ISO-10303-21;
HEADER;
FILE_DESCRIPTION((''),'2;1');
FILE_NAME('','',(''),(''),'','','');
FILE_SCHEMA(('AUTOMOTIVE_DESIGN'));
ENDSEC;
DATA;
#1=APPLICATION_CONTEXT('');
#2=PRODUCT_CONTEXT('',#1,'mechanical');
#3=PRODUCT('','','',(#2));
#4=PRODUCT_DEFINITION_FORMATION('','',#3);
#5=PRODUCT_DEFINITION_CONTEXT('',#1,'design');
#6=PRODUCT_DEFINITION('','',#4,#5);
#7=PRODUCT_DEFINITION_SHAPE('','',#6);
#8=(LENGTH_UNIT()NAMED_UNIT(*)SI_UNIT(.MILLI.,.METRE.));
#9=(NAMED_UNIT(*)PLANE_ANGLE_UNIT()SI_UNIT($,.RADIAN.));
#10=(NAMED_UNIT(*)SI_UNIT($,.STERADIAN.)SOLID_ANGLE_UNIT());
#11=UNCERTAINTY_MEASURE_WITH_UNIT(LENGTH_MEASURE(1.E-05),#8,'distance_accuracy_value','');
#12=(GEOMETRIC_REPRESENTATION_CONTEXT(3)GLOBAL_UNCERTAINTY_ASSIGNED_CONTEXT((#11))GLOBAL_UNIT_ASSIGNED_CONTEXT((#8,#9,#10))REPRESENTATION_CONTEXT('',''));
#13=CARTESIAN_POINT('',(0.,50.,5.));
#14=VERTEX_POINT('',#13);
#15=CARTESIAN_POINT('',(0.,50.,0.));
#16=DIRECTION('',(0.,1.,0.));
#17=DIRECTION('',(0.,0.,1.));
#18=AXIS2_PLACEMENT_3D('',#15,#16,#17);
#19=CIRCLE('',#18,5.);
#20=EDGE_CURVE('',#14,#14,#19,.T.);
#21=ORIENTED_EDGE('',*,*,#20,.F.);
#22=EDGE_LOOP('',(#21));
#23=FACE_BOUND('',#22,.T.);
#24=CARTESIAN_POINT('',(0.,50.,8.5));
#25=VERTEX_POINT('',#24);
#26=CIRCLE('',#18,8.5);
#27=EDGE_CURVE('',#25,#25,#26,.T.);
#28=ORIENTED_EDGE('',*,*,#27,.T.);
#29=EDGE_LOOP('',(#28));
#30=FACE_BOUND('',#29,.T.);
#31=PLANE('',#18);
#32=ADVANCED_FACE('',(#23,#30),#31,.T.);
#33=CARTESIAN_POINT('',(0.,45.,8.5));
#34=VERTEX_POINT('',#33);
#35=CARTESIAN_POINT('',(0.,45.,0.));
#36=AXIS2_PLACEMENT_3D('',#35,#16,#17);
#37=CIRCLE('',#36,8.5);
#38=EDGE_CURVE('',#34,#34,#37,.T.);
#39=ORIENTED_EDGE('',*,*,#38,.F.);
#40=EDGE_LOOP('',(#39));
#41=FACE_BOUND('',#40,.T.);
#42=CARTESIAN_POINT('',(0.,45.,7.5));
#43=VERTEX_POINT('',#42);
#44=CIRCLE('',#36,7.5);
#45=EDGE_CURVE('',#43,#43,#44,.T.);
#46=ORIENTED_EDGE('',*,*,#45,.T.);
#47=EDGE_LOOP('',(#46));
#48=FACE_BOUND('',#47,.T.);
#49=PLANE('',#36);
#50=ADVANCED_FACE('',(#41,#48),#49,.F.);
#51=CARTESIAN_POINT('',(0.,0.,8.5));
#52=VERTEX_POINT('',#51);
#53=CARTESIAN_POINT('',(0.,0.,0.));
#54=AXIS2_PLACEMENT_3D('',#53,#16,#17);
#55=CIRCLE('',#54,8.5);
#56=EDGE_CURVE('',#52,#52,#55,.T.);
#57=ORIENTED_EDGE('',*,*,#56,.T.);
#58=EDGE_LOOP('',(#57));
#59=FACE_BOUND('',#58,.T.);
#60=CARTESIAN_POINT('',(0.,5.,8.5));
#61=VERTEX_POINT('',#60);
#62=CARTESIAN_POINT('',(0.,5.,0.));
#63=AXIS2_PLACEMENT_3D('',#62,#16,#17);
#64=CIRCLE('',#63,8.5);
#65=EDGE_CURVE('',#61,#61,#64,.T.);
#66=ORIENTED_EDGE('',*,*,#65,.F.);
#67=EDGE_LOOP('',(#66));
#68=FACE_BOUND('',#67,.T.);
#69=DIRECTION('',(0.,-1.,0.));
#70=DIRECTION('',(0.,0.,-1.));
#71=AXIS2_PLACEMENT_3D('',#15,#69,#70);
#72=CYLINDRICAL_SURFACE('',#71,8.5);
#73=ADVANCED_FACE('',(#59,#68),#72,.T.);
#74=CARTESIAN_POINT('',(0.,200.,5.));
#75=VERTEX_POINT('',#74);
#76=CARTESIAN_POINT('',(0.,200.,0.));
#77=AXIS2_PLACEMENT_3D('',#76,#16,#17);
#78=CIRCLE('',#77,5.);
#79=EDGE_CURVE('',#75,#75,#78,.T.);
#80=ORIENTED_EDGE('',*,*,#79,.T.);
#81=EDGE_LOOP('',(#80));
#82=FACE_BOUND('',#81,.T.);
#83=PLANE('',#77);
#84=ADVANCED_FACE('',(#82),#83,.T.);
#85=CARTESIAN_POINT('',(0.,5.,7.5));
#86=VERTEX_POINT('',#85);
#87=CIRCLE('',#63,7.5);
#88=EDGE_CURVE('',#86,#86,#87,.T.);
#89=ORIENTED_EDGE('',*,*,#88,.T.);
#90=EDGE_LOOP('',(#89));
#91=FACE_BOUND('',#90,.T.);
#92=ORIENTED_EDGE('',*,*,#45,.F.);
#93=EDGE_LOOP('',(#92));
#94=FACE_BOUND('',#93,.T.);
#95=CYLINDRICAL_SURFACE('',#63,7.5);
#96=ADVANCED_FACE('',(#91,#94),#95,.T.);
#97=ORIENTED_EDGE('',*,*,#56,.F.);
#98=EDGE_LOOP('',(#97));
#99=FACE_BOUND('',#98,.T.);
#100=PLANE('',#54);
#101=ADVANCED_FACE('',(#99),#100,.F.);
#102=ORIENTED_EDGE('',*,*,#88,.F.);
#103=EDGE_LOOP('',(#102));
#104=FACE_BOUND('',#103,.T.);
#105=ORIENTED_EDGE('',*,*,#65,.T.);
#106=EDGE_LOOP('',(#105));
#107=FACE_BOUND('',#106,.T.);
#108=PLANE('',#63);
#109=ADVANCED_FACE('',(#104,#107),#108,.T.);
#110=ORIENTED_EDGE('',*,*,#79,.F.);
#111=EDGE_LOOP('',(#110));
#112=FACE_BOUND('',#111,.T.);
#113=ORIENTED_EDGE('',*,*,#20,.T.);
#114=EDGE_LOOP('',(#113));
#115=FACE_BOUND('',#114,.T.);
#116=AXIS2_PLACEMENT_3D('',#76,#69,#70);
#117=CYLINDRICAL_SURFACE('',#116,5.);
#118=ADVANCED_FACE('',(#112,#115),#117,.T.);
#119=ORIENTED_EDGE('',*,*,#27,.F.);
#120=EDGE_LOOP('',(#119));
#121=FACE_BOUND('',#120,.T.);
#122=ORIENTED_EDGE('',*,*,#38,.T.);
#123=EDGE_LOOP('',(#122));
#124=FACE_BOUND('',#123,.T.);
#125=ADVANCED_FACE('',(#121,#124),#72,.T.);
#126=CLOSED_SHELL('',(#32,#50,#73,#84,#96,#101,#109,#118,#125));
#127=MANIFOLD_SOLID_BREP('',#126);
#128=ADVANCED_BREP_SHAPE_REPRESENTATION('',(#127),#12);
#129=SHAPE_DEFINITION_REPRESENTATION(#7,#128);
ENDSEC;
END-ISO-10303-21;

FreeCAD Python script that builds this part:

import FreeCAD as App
import Part
import Sketcher
Q = App.Units.Quantity

doc = App.newDocument("Part")
body = doc.addObject("PartDesign::Body", "Body")

# Sketch on XZ plane
sketch1 = body.newObject("Sketcher::SketchObject", "Sketch")
sketch1.AttachmentSupport = (doc.getObject("XZ_Plane"), [""])
sketch1.MapMode = "FlatFace"
sketch1.addGeometry(Part.Circle(App.Vector(0, 0, 0), App.Vector(0, 0, 1), 8.5), False)
sketch1.addConstraint([
    Sketcher.Constraint("Coincident", 0, 3, -1, 1),
    Sketcher.Constraint("Diameter", 0, Q("17 mm")),
])
pad1 = body.newObject("PartDesign::Pad", "Pad")
pad1.Profile = sketch1
pad1.Length = 50
pad1.Reversed = True

# Sketch on XZ plane
sketch2 = body.newObject("Sketcher::SketchObject", "Sketch001")
sketch2.AttachmentSupport = (doc.getObject("XZ_Plane"), [""])
sketch2.MapMode = "FlatFace"
sketch2.AttachmentOffset = App.Placement(App.Vector(0, 0, -50), App.Rotation())
sketch2.addGeometry(Part.Circle(App.Vector(0, 0, 0), App.Vector(0, 0, 1), 5), False)
sketch2.addConstraint([
    Sketcher.Constraint("Coincident", 0, 3, -1, 1),
    Sketcher.Constraint("Diameter", 0, Q("10 mm")),
])
pad2 = body.newObject("PartDesign::Pad", "Pad001")
pad2.Profile = sketch2
pad2.Length = 150
pad2.Reversed = True

# Sketch on XZ plane
sketch3 = body.newObject("Sketcher::SketchObject", "Sketch002")
sketch3.AttachmentSupport = (doc.getObject("XZ_Plane"), [""])
sketch3.MapMode = "FlatFace"
sketch3.AttachmentOffset = App.Placement(App.Vector(0, 0, -45), App.Rotation())
sketch3.addGeometry([
    Part.Circle(App.Vector(0, 0, 0), App.Vector(0, 0, 1), 8.5),
    Part.Circle(App.Vector(0, 0, 0), App.Vector(0, 0, 1), 7.5),
], False)
sketch3.addConstraint([
    Sketcher.Constraint("Coincident", 0, 3, -1, 1),
    Sketcher.Constraint("Coincident", 1, 3, -1, 1),
    Sketcher.Constraint("Diameter", 0, Q("17 mm")),
    Sketcher.Constraint("Diameter", 1, Q("15 mm")),
])
pocket1 = body.newObject("PartDesign::Pocket", "Pocket")
pocket1.Profile = sketch3
pocket1.Length = 40
pocket1.Reversed = True

doc.recompute()
